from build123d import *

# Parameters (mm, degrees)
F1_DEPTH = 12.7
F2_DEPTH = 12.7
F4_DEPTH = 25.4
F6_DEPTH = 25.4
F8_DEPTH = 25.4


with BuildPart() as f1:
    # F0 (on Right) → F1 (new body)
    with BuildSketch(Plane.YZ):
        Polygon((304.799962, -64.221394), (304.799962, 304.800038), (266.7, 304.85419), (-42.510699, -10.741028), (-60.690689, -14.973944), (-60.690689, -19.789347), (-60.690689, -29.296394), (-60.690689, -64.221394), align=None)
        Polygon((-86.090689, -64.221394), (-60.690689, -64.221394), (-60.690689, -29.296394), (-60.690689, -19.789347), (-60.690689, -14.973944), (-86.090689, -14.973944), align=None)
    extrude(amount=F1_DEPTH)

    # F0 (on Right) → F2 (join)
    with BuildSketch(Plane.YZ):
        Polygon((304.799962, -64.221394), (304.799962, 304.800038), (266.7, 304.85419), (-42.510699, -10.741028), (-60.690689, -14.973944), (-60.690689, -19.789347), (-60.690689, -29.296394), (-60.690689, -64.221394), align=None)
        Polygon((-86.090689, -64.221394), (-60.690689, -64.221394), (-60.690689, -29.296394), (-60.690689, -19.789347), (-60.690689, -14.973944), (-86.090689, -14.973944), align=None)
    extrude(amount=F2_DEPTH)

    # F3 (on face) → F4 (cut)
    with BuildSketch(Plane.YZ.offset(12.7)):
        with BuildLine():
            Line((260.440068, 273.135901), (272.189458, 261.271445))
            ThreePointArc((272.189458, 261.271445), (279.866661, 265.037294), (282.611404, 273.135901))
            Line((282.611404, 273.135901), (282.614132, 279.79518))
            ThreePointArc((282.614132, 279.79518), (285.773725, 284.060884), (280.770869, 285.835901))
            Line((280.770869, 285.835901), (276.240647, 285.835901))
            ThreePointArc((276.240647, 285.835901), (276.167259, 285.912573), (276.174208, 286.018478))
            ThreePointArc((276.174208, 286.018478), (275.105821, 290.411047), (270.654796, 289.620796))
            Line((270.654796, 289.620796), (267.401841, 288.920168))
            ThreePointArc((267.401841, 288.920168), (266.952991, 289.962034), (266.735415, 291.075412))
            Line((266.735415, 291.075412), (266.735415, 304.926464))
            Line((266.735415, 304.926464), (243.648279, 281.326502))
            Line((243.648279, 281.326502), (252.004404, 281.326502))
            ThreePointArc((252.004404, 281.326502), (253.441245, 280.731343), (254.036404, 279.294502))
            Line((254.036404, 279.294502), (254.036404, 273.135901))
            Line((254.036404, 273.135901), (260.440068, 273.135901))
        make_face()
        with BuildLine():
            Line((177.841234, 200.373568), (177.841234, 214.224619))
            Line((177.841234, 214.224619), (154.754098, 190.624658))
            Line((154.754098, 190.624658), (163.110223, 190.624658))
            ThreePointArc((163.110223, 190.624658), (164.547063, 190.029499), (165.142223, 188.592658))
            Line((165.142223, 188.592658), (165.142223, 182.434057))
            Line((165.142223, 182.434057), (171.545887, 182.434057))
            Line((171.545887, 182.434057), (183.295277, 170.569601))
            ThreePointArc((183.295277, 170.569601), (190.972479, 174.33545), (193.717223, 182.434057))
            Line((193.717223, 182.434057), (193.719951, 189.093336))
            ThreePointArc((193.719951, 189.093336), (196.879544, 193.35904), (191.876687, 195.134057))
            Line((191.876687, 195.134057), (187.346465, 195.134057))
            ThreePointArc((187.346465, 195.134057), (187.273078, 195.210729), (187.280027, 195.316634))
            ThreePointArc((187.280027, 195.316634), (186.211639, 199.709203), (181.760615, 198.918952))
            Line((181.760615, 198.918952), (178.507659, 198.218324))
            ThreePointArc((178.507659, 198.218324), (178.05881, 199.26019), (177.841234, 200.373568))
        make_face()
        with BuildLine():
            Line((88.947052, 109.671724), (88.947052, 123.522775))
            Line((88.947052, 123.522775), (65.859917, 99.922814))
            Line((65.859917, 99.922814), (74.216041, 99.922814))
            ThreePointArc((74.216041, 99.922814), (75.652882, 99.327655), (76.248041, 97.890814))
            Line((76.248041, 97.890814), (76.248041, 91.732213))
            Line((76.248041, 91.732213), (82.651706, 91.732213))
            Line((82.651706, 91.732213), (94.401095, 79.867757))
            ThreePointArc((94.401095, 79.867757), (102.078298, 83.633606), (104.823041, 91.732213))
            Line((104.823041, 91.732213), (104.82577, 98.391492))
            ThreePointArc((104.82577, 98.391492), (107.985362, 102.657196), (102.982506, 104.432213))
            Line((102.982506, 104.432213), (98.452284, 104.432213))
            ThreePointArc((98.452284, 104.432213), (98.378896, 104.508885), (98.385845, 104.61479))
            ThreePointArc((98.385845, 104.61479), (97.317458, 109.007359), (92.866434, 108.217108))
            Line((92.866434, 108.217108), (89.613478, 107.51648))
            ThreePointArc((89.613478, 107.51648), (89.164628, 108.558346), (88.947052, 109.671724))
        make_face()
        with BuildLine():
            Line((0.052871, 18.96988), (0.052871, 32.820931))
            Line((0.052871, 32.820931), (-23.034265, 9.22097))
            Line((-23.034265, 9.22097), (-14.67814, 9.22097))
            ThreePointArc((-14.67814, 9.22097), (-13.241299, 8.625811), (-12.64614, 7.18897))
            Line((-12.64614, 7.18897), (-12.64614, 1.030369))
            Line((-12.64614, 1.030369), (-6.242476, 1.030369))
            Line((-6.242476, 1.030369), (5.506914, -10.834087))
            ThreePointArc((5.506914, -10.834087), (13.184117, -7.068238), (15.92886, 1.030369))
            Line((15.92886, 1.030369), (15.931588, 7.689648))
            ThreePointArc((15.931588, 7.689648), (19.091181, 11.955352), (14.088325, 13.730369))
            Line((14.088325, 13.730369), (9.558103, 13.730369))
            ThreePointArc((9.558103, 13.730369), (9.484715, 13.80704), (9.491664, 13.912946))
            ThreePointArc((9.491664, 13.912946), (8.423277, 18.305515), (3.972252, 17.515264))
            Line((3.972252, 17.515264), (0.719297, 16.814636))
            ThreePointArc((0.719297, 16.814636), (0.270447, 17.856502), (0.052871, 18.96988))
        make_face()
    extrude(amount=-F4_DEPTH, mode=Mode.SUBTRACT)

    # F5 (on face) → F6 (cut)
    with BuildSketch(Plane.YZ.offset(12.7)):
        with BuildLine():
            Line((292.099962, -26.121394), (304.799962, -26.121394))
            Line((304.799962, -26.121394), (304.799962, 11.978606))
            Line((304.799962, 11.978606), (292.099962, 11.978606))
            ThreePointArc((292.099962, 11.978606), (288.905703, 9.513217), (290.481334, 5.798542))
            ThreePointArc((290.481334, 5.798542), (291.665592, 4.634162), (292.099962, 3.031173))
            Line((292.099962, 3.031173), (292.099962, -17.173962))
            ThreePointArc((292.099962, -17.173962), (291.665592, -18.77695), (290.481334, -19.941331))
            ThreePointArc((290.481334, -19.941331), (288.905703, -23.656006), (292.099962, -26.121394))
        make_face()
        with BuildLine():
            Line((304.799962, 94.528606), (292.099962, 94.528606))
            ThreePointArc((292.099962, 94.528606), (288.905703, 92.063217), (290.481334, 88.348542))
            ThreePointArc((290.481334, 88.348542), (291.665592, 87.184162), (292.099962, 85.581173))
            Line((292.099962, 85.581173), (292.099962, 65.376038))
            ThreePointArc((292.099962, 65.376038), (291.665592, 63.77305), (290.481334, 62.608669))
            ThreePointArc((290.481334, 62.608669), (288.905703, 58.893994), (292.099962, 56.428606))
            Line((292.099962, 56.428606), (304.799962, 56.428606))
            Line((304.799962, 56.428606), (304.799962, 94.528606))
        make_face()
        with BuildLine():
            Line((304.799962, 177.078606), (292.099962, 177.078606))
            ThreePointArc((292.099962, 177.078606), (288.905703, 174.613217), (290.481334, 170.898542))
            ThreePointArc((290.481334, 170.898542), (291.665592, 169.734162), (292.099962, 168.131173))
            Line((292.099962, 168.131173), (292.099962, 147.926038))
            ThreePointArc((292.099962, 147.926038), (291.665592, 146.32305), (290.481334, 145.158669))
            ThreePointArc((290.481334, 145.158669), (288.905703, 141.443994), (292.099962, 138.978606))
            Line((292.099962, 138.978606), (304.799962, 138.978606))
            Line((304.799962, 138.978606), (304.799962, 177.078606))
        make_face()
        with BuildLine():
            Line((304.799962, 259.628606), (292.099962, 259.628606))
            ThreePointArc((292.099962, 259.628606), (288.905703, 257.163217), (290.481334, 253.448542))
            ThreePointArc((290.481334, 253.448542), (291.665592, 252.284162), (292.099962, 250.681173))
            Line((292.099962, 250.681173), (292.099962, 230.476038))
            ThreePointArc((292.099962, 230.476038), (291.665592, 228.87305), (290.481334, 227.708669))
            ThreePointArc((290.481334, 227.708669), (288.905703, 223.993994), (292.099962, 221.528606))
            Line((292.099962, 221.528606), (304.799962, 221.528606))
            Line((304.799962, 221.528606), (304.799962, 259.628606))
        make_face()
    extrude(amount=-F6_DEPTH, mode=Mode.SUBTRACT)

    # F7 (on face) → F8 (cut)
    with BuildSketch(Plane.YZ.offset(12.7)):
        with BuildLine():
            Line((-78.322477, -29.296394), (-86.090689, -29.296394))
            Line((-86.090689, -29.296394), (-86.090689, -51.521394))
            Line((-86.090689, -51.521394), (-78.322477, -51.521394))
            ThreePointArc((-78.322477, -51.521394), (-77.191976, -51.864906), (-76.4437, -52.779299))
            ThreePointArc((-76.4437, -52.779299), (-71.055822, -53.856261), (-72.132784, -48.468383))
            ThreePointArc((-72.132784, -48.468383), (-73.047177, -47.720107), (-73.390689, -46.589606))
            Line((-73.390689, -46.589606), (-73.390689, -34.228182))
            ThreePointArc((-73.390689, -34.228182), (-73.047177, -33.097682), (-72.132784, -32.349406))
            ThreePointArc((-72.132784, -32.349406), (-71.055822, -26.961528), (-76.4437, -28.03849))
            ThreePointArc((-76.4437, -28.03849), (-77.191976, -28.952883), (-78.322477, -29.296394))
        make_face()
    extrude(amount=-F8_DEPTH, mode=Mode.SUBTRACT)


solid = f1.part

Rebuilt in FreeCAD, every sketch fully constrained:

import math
import FreeCAD as App
import Part
import Sketcher
Q = App.Units.Quantity

doc = App.newDocument("Part")
body = doc.addObject("PartDesign::Body", "Body")

sketch1 = doc.addObject("Sketcher::SketchObject", "Sketch")
body.addObject(sketch1)
sketch1.AttachmentSupport = (doc.YZ_Plane, [""])
sketch1.MapMode = "FlatFace"
sketch1.addGeometry(Part.LineSegment(App.Vector(305, -64, 0), App.Vector(305, 305, 0)), False)
sketch1.addGeometry(Part.LineSegment(App.Vector(305, 305, 0), App.Vector(267, 305, 0)), False)
sketch1.addGeometry(Part.LineSegment(App.Vector(267, 305, 0), App.Vector(-43, -11, 0)), False)
sketch1.addGeometry(Part.LineSegment(App.Vector(-43, -11, 0), App.Vector(-61, -15, 0)), False)
sketch1.addGeometry(Part.LineSegment(App.Vector(-61, -15, 0), App.Vector(-86, -15, 0)), False)
sketch1.addGeometry(Part.LineSegment(App.Vector(-86, -15, 0), App.Vector(-86, -64, 0)), False)
sketch1.addGeometry(Part.LineSegment(App.Vector(-86, -64, 0), App.Vector(305, -64, 0)), False)
sketch1.addConstraint(Sketcher.Constraint("Coincident", 0, 2, 1, 1))
sketch1.addConstraint(Sketcher.Constraint("Coincident", 1, 2, 2, 1))
sketch1.addConstraint(Sketcher.Constraint("Coincident", 2, 2, 3, 1))
sketch1.addConstraint(Sketcher.Constraint("Coincident", 3, 2, 4, 1))
sketch1.addConstraint(Sketcher.Constraint("Coincident", 4, 2, 5, 1))
sketch1.addConstraint(Sketcher.Constraint("Coincident", 5, 2, 6, 1))
sketch1.addConstraint(Sketcher.Constraint("Coincident", 6, 2, 0, 1))
sketch1.addConstraint(Sketcher.Constraint("Vertical", 0))
sketch1.addConstraint(Sketcher.Constraint("Horizontal", 4))
sketch1.addConstraint(Sketcher.Constraint("Vertical", 5))
sketch1.addConstraint(Sketcher.Constraint("Horizontal", 6))
sketch1.addConstraint(Sketcher.Constraint("DistanceX", 4, 2, 4, 1, Q("1 in")))
sketch1.addConstraint(Sketcher.Constraint("Distance", 1, Q("1.5 in")))
sketch1.addConstraint(Sketcher.Constraint("DistanceX", -1, 1, 1, 2, Q("10.5 in")))
sketch1.addConstraint(Sketcher.Constraint("DistanceX", 6, 1, 6, 2, 390.890651))
sketch1.addConstraint(Sketcher.Constraint("DistanceY", 0, 1, 0, 2, 369.021432))
sketch1.addConstraint(Sketcher.Constraint("DistanceY", 5, 2, 5, 1, 49.24745))
sketch1.addConstraint(Sketcher.Constraint("DistanceX", 2, 2, -1, 1, 42.510699))
sketch1.addConstraint(Sketcher.Constraint("Distance", 3, 18.666269))
sketch1.addConstraint(Sketcher.Constraint("DistanceY", -1, 1, 1, 2, 304.85419))
sketch1.addConstraint(Sketcher.Constraint("DistanceY", 2, 2, 1, 2, 315.595218))
pad1 = doc.addObject("PartDesign::Pad", "Pad")
body.addObject(pad1)
pad1.Profile = sketch1
pad1.Length = Q("0.5 in")

sketch2 = doc.addObject("Sketcher::SketchObject", "Sketch001")
body.addObject(sketch2)
sketch2.AttachmentSupport = (doc.YZ_Plane, [""])
sketch2.MapMode = "FlatFace"
sketch2.addGeometry(Part.LineSegment(App.Vector(305, -64, 0), App.Vector(305, 305, 0)), False)
sketch2.addGeometry(Part.LineSegment(App.Vector(305, 305, 0), App.Vector(267, 305, 0)), False)
sketch2.addGeometry(Part.LineSegment(App.Vector(267, 305, 0), App.Vector(-43, -11, 0)), False)
sketch2.addGeometry(Part.LineSegment(App.Vector(-43, -11, 0), App.Vector(-61, -15, 0)), False)
sketch2.addGeometry(Part.LineSegment(App.Vector(-61, -15, 0), App.Vector(-86, -15, 0)), False)
sketch2.addGeometry(Part.LineSegment(App.Vector(-86, -15, 0), App.Vector(-86, -64, 0)), False)
sketch2.addGeometry(Part.LineSegment(App.Vector(-86, -64, 0), App.Vector(305, -64, 0)), False)
sketch2.addConstraint(Sketcher.Constraint("Coincident", 0, 2, 1, 1))
sketch2.addConstraint(Sketcher.Constraint("Coincident", 1, 2, 2, 1))
sketch2.addConstraint(Sketcher.Constraint("Coincident", 2, 2, 3, 1))
sketch2.addConstraint(Sketcher.Constraint("Coincident", 3, 2, 4, 1))
sketch2.addConstraint(Sketcher.Constraint("Coincident", 4, 2, 5, 1))
sketch2.addConstraint(Sketcher.Constraint("Coincident", 5, 2, 6, 1))
sketch2.addConstraint(Sketcher.Constraint("Coincident", 6, 2, 0, 1))
sketch2.addConstraint(Sketcher.Constraint("Vertical", 0))
sketch2.addConstraint(Sketcher.Constraint("Horizontal", 4))
sketch2.addConstraint(Sketcher.Constraint("Vertical", 5))
sketch2.addConstraint(Sketcher.Constraint("Horizontal", 6))
sketch2.addConstraint(Sketcher.Constraint("DistanceX", 4, 2, 4, 1, Q("1 in")))
sketch2.addConstraint(Sketcher.Constraint("Distance", 1, Q("1.5 in")))
sketch2.addConstraint(Sketcher.Constraint("DistanceX", -1, 1, 1, 2, Q("10.5 in")))
sketch2.addConstraint(Sketcher.Constraint("DistanceX", 6, 1, 6, 2, 390.890651))
sketch2.addConstraint(Sketcher.Constraint("DistanceY", 0, 1, 0, 2, 369.021432))
sketch2.addConstraint(Sketcher.Constraint("DistanceY", 5, 2, 5, 1, 49.24745))
sketch2.addConstraint(Sketcher.Constraint("DistanceX", 2, 2, -1, 1, 42.510699))
sketch2.addConstraint(Sketcher.Constraint("Distance", 3, 18.666269))
sketch2.addConstraint(Sketcher.Constraint("DistanceY", -1, 1, 1, 2, 304.85419))
sketch2.addConstraint(Sketcher.Constraint("DistanceY", 2, 2, 1, 2, 315.595218))
pad2 = doc.addObject("PartDesign::Pad", "Pad001")
body.addObject(pad2)
pad2.Profile = sketch2
pad2.Length = Q("0.5 in")

sketch3 = doc.addObject("Sketcher::SketchObject", "Sketch002")
body.addObject(sketch3)
sketch3.AttachmentSupport = (doc.YZ_Plane, [""])
sketch3.MapMode = "FlatFace"
sketch3.AttachmentOffset = App.Placement(App.Vector(0, 0, 0.5 * 25.4), App.Rotation())
sketch3.addGeometry(Part.LineSegment(App.Vector(260.440068, 273.135901, 0), App.Vector(272.189458, 261.271445, 0)), False)
sketch3.addGeometry(Part.ArcOfCircle(Part.Circle(App.Vector(271.498904, 272.387677, 0), App.Vector(0, 0, 1), 11.137661), math.radians(-86.445286), math.radians(3.852009)), False)
sketch3.addGeometry(Part.LineSegment(App.Vector(282.611404, 273.135901, 0), App.Vector(282.614132, 279.79518, 0)), False)
sketch3.addGeometry(Part.ArcOfCircle(Part.Circle(App.Vector(282.615485, 283.09718, 0), App.Vector(0, 0, 1), 3.302), math.radians(-90.023483), math.radians(123.961526)), False)
sketch3.addGeometry(Part.LineSegment(App.Vector(280.770869, 285.835901, 0), App.Vector(276.240647, 285.835901, 0)), False)
sketch3.addGeometry(Part.ArcOfCircle(Part.Circle(App.Vector(276.291077, 285.957629, 0), App.Vector(0, 0, 1), 0.131761), math.radians(152.495822), math.radians(247.496644)), False)
sketch3.addGeometry(Part.ArcOfCircle(Part.Circle(App.Vector(273.301095, 287.645876, 0), App.Vector(0, 0, 1), 3.302), math.radians(-29.528229), math.radians(143.266204)), False)
sketch3.addGeometry(Part.LineSegment(App.Vector(270.654796, 289.620796, 0), App.Vector(267.401841, 288.920168, 0)), False)
sketch3.addGeometry(Part.ArcOfCircle(Part.Circle(App.Vector(272.031996, 291.53252, 0), App.Vector(0, 0, 1), 5.31627), math.radians(-175.067455), math.radians(-150.568136)), False)
sketch3.addGeometry(Part.LineSegment(App.Vector(266.735415, 291.075412, 0), App.Vector(266.735415, 304.926464, 0)), False)
sketch3.addGeometry(Part.LineSegment(App.Vector(266.735415, 304.926464, 0), App.Vector(243.648279, 281.326502, 0)), False)
sketch3.addGeometry(Part.LineSegment(App.Vector(243.648279, 281.326502, 0), App.Vector(252.004404, 281.326502, 0)), False)
sketch3.addGeometry(Part.ArcOfCircle(Part.Circle(App.Vector(252.004404, 279.294502, 0), App.Vector(0, 0, 1), 2.032), math.radians(-0.000002), math.radians(90.000002)), False)
sketch3.addGeometry(Part.LineSegment(App.Vector(254.036404, 279.294502, 0), App.Vector(254.036404, 273.135901, 0)), False)
sketch3.addGeometry(Part.LineSegment(App.Vector(254.036404, 273.135901, 0), App.Vector(260.440068, 273.135901, 0)), False)
sketch3.addGeometry(Part.LineSegment(App.Vector(177.841234, 200.373568, 0), App.Vector(177.841234, 214.224619, 0)), False)
sketch3.addGeometry(Part.LineSegment(App.Vector(177.841234, 214.224619, 0), App.Vector(154.754098, 190.624658, 0)), False)
sketch3.addGeometry(Part.LineSegment(App.Vector(154.754098, 190.624658, 0), App.Vector(163.110223, 190.624658, 0)), False)
sketch3.addGeometry(Part.ArcOfCircle(Part.Circle(App.Vector(163.110221, 188.592656, 0), App.Vector(0, 0, 1), 2.032002), math.radians(0.000046), math.radians(89.999954)), False)
sketch3.addGeometry(Part.LineSegment(App.Vector(165.142223, 188.592658, 0), App.Vector(165.142223, 182.434057, 0)), False)
sketch3.addGeometry(Part.LineSegment(App.Vector(165.142223, 182.434057, 0), App.Vector(171.545887, 182.434057, 0)), False)
sketch3.addGeometry(Part.LineSegment(App.Vector(171.545887, 182.434057, 0), App.Vector(183.295277, 170.569601, 0)), False)
sketch3.addGeometry(Part.ArcOfCircle(Part.Circle(App.Vector(182.604721, 181.685835, 0), App.Vector(0, 0, 1), 11.137663), math.radians(-86.445276), math.radians(3.852)), False)
sketch3.addGeometry(Part.LineSegment(App.Vector(193.717223, 182.434057, 0), App.Vector(193.719951, 189.093336, 0)), False)
sketch3.addGeometry(Part.ArcOfCircle(Part.Circle(App.Vector(193.721304, 192.395336, 0), App.Vector(0, 0, 1), 3.302), math.radians(-90.023478), math.radians(123.961538)), False)
sketch3.addGeometry(Part.LineSegment(App.Vector(191.876687, 195.134057, 0), App.Vector(187.346465, 195.134057, 0)), False)
sketch3.addGeometry(Part.ArcOfCircle(Part.Circle(App.Vector(187.396896, 195.255785, 0), App.Vector(0, 0, 1), 0.131761), math.radians(152.495935), math.radians(247.495976)), False)
sketch3.addGeometry(Part.ArcOfCircle(Part.Circle(App.Vector(184.406914, 196.944032, 0), App.Vector(0, 0, 1), 3.302), math.radians(-29.528219), math.radians(143.266194)), False)
sketch3.addGeometry(Part.LineSegment(App.Vector(181.760615, 198.918952, 0), App.Vector(178.507659, 198.218324, 0)), False)
sketch3.addGeometry(Part.ArcOfCircle(Part.Circle(App.Vector(183.137834, 200.83068, 0), App.Vector(0, 0, 1), 5.316289), math.radians(-175.067432), math.radians(-150.568207)), False)
sketch3.addGeometry(Part.LineSegment(App.Vector(88.947052, 109.671724, 0), App.Vector(88.947052, 123.522775, 0)), False)
sketch3.addGeometry(Part.LineSegment(App.Vector(88.947052, 123.522775, 0), App.Vector(65.859917, 99.922814, 0)), False)
sketch3.addGeometry(Part.LineSegment(App.Vector(65.859917, 99.922814, 0), App.Vector(74.216041, 99.922814, 0)), False)
sketch3.addGeometry(Part.ArcOfCircle(Part.Circle(App.Vector(74.216041, 97.890814, 0), App.Vector(0, 0, 1), 2.032), math.radians(-0.000002), math.radians(90.000002)), False)
sketch3.addGeometry(Part.LineSegment(App.Vector(76.248041, 97.890814, 0), App.Vector(76.248041, 91.732213, 0)), False)
sketch3.addGeometry(Part.LineSegment(App.Vector(76.248041, 91.732213, 0), App.Vector(82.651706, 91.732213, 0)), False)
sketch3.addGeometry(Part.LineSegment(App.Vector(82.651706, 91.732213, 0), App.Vector(94.401095, 79.867757, 0)), False)
sketch3.addGeometry(Part.ArcOfCircle(Part.Circle(App.Vector(93.710541, 90.983989, 0), App.Vector(0, 0, 1), 11.137661), math.radians(-86.445286), math.radians(3.852009)), False)
sketch3.addGeometry(Part.LineSegment(App.Vector(104.823041, 91.732213, 0), App.Vector(104.82577, 98.391492, 0)), False)
sketch3.addGeometry(Part.ArcOfCircle(Part.Circle(App.Vector(104.827122, 101.693492, 0), App.Vector(0, 0, 1), 3.302), math.radians(-90.023465), math.radians(123.961526)), False)
sketch3.addGeometry(Part.LineSegment(App.Vector(102.982506, 104.432213, 0), App.Vector(98.452284, 104.432213, 0)), False)
sketch3.addGeometry(Part.ArcOfCircle(Part.Circle(App.Vector(98.502714, 104.553941, 0), App.Vector(0, 0, 1), 0.131761), math.radians(152.495822), math.radians(247.496644)), False)
sketch3.addGeometry(Part.ArcOfCircle(Part.Circle(App.Vector(95.512732, 106.242189, 0), App.Vector(0, 0, 1), 3.302), math.radians(-29.528236), math.radians(143.266201)), False)
sketch3.addGeometry(Part.LineSegment(App.Vector(92.866434, 108.217108, 0), App.Vector(89.613478, 107.51648, 0)), False)
sketch3.addGeometry(Part.ArcOfCircle(Part.Circle(App.Vector(94.243633, 110.128832, 0), App.Vector(0, 0, 1), 5.31627), math.radians(-175.067455), math.radians(-150.568136)), False)
sketch3.addGeometry(Part.LineSegment(App.Vector(0.052871, 18.96988, 0), App.Vector(0.052871, 32.820931, 0)), False)
sketch3.addGeometry(Part.LineSegment(App.Vector(0.052871, 32.820931, 0), App.Vector(-23.034265, 9.22097, 0)), False)
sketch3.addGeometry(Part.LineSegment(App.Vector(-23.034265, 9.22097, 0), App.Vector(-14.67814, 9.22097, 0)), False)
sketch3.addGeometry(Part.ArcOfCircle(Part.Circle(App.Vector(-14.67814, 7.18897, 0), App.Vector(0, 0, 1), 2.032), math.radians(-0.000002), math.radians(90.000002)), False)
sketch3.addGeometry(Part.LineSegment(App.Vector(-12.64614, 7.18897, 0), App.Vector(-12.64614, 1.030369, 0)), False)
sketch3.addGeometry(Part.LineSegment(App.Vector(-12.64614, 1.030369, 0), App.Vector(-6.242476, 1.030369, 0)), False)
sketch3.addGeometry(Part.LineSegment(App.Vector(-6.242476, 1.030369, 0), App.Vector(5.506914, -10.834087, 0)), False)
sketch3.addGeometry(Part.ArcOfCircle(Part.Circle(App.Vector(4.81636, 0.282145, 0), App.Vector(0, 0, 1), 11.137661), math.radians(-86.445286), math.radians(3.852009)), False)
sketch3.addGeometry(Part.LineSegment(App.Vector(15.92886, 1.030369, 0), App.Vector(15.931588, 7.689648, 0)), False)
sketch3.addGeometry(Part.ArcOfCircle(Part.Circle(App.Vector(15.932941, 10.991648, 0), App.Vector(0, 0, 1), 3.302), math.radians(-90.023483), math.radians(123.961526)), False)
sketch3.addGeometry(Part.LineSegment(App.Vector(14.088325, 13.730369, 0), App.Vector(9.558103, 13.730369, 0)), False)
sketch3.addGeometry(Part.ArcOfCircle(Part.Circle(App.Vector(9.608532, 13.852097, 0), App.Vector(0, 0, 1), 0.13176), math.radians(152.495484), math.radians(247.496982)), False)
sketch3.addGeometry(Part.ArcOfCircle(Part.Circle(App.Vector(6.618551, 15.540344, 0), App.Vector(0, 0, 1), 3.302), math.radians(-29.528229), math.radians(143.266204)), False)
sketch3.addGeometry(Part.LineSegment(App.Vector(3.972252, 17.515264, 0), App.Vector(0.719297, 16.814636, 0)), False)
sketch3.addGeometry(Part.ArcOfCircle(Part.Circle(App.Vector(5.349452, 19.426988, 0), App.Vector(0, 0, 1), 5.31627), math.radians(-175.067455), math.radians(-150.568136)), False)
sketch3.addConstraint(Sketcher.Constraint("Coincident", 0, 2, 1, 1))
sketch3.addConstraint(Sketcher.Constraint("Coincident", 1, 2, 2, 1))
sketch3.addConstraint(Sketcher.Constraint("Coincident", 2, 2, 3, 1))
sketch3.addConstraint(Sketcher.Constraint("Coincident", 3, 2, 4, 1))
sketch3.addConstraint(Sketcher.Constraint("Coincident", 4, 2, 5, 2))
sketch3.addConstraint(Sketcher.Constraint("Coincident", 5, 1, 6, 1))
sketch3.addConstraint(Sketcher.Constraint("Coincident", 6, 2, 7, 1))
sketch3.addConstraint(Sketcher.Constraint("Coincident", 7, 2, 8, 2))
sketch3.addConstraint(Sketcher.Constraint("Coincident", 8, 1, 9, 1))
sketch3.addConstraint(Sketcher.Constraint("Coincident", 9, 2, 10, 1))
sketch3.addConstraint(Sketcher.Constraint("Coincident", 10, 2, 11, 1))
sketch3.addConstraint(Sketcher.Constraint("Coincident", 11, 2, 12, 2))
sketch3.addConstraint(Sketcher.Constraint("Coincident", 12, 1, 13, 1))
sketch3.addConstraint(Sketcher.Constraint("Coincident", 13, 2, 14, 1))
sketch3.addConstraint(Sketcher.Constraint("Coincident", 14, 2, 0, 1))
sketch3.addConstraint(Sketcher.Constraint("Coincident", 15, 2, 16, 1))
sketch3.addConstraint(Sketcher.Constraint("Coincident", 16, 2, 17, 1))
sketch3.addConstraint(Sketcher.Constraint("Coincident", 17, 2, 18, 2))
sketch3.addConstraint(Sketcher.Constraint("Coincident", 18, 1, 19, 1))
sketch3.addConstraint(Sketcher.Constraint("Coincident", 19, 2, 20, 1))
sketch3.addConstraint(Sketcher.Constraint("Coincident", 20, 2, 21, 1))
sketch3.addConstraint(Sketcher.Constraint("Coincident", 21, 2, 22, 1))
sketch3.addConstraint(Sketcher.Constraint("Coincident", 22, 2, 23, 1))
sketch3.addConstraint(Sketcher.Constraint("Coincident", 23, 2, 24, 1))
sketch3.addConstraint(Sketcher.Constraint("Coincident", 24, 2, 25, 1))
sketch3.addConstraint(Sketcher.Constraint("Coincident", 25, 2, 26, 2))
sketch3.addConstraint(Sketcher.Constraint("Coincident", 26, 1, 27, 1))
sketch3.addConstraint(Sketcher.Constraint("Coincident", 27, 2, 28, 1))
sketch3.addConstraint(Sketcher.Constraint("Coincident", 28, 2, 29, 2))
sketch3.addConstraint(Sketcher.Constraint("Coincident", 29, 1, 15, 1))
sketch3.addConstraint(Sketcher.Constraint("Coincident", 30, 2, 31, 1))
sketch3.addConstraint(Sketcher.Constraint("Coincident", 31, 2, 32, 1))
sketch3.addConstraint(Sketcher.Constraint("Coincident", 32, 2, 33, 2))
sketch3.addConstraint(Sketcher.Constraint("Coincident", 33, 1, 34, 1))
sketch3.addConstraint(Sketcher.Constraint("Coincident", 34, 2, 35, 1))
sketch3.addConstraint(Sketcher.Constraint("Coincident", 35, 2, 36, 1))
sketch3.addConstraint(Sketcher.Constraint("Coincident", 36, 2, 37, 1))
sketch3.addConstraint(Sketcher.Constraint("Coincident", 37, 2, 38, 1))
sketch3.addConstraint(Sketcher.Constraint("Coincident", 38, 2, 39, 1))
sketch3.addConstraint(Sketcher.Constraint("Coincident", 39, 2, 40, 1))
sketch3.addConstraint(Sketcher.Constraint("Coincident", 40, 2, 41, 2))
sketch3.addConstraint(Sketcher.Constraint("Coincident", 41, 1, 42, 1))
sketch3.addConstraint(Sketcher.Constraint("Coincident", 42, 2, 43, 1))
sketch3.addConstraint(Sketcher.Constraint("Coincident", 43, 2, 44, 2))
sketch3.addConstraint(Sketcher.Constraint("Coincident", 44, 1, 30, 1))
sketch3.addConstraint(Sketcher.Constraint("Coincident", 45, 2, 46, 1))
sketch3.addConstraint(Sketcher.Constraint("Coincident", 46, 2, 47, 1))
sketch3.addConstraint(Sketcher.Constraint("Coincident", 47, 2, 48, 2))
sketch3.addConstraint(Sketcher.Constraint("Coincident", 48, 1, 49, 1))
sketch3.addConstraint(Sketcher.Constraint("Coincident", 49, 2, 50, 1))
sketch3.addConstraint(Sketcher.Constraint("Coincident", 50, 2, 51, 1))
sketch3.addConstraint(Sketcher.Constraint("Coincident", 51, 2, 52, 1))
sketch3.addConstraint(Sketcher.Constraint("Coincident", 52, 2, 53, 1))
sketch3.addConstraint(Sketcher.Constraint("Coincident", 53, 2, 54, 1))
sketch3.addConstraint(Sketcher.Constraint("Coincident", 54, 2, 55, 1))
sketch3.addConstraint(Sketcher.Constraint("Coincident", 55, 2, 56, 2))
sketch3.addConstraint(Sketcher.Constraint("Coincident", 56, 1, 57, 1))
sketch3.addConstraint(Sketcher.Constraint("Coincident", 57, 2, 58, 1))
sketch3.addConstraint(Sketcher.Constraint("Coincident", 58, 2, 59, 2))
sketch3.addConstraint(Sketcher.Constraint("Coincident", 59, 1, 45, 1))
sketch3.addConstraint(Sketcher.Constraint("Horizontal", 4))
sketch3.addConstraint(Sketcher.Constraint("Vertical", 9))
sketch3.addConstraint(Sketcher.Constraint("Horizontal", 11))
sketch3.addConstraint(Sketcher.Constraint("Vertical", 13))
sketch3.addConstraint(Sketcher.Constraint("Horizontal", 14))
sketch3.addConstraint(Sketcher.Constraint("Vertical", 15))
sketch3.addConstraint(Sketcher.Constraint("Horizontal", 17))
sketch3.addConstraint(Sketcher.Constraint("Vertical", 19))
sketch3.addConstraint(Sketcher.Constraint("Horizontal", 20))
sketch3.addConstraint(Sketcher.Constraint("Horizontal", 25))
sketch3.addConstraint(Sketcher.Constraint("Vertical", 30))
sketch3.addConstraint(Sketcher.Constraint("Horizontal", 32))
sketch3.addConstraint(Sketcher.Constraint("Vertical", 34))
sketch3.addConstraint(Sketcher.Constraint("Horizontal", 35))
sketch3.addConstraint(Sketcher.Constraint("Horizontal", 40))
sketch3.addConstraint(Sketcher.Constraint("Vertical", 45))
sketch3.addConstraint(Sketcher.Constraint("Horizontal", 47))
sketch3.addConstraint(Sketcher.Constraint("Vertical", 49))
sketch3.addConstraint(Sketcher.Constraint("Horizontal", 50))
sketch3.addConstraint(Sketcher.Constraint("Horizontal", 55))
sketch3.addConstraint(Sketcher.Constraint("Radius", 3, Q("0.13 in")))
sketch3.addConstraint(Sketcher.Constraint("Radius", 6, Q("0.13 in")))
sketch3.addConstraint(Sketcher.Constraint("Radius", 12, Q("0.08 in")))
sketch3.addConstraint(Sketcher.Constraint("Radius", 18, Q("0.0800001 in")))
sketch3.addConstraint(Sketcher.Constraint("Radius", 24, Q("0.13 in")))
sketch3.addConstraint(Sketcher.Constraint("Radius", 27, Q("0.13 in")))
sketch3.addConstraint(Sketcher.Constraint("Radius", 33, Q("0.08 in")))
sketch3.addConstraint(Sketcher.Constraint("Radius", 39, Q("0.13 in")))
sketch3.addConstraint(Sketcher.Constraint("Radius", 42, Q("0.13 in")))
sketch3.addConstraint(Sketcher.Constraint("Radius", 48, Q("0.08 in")))
sketch3.addConstraint(Sketcher.Constraint("Radius", 54, Q("0.13 in")))
sketch3.addConstraint(Sketcher.Constraint("Radius", 57, Q("0.13 in")))
sketch3.addConstraint(Sketcher.Constraint("Radius", 1, 11.137661))
sketch3.addConstraint(Sketcher.Constraint("Radius", 5, 0.131761))
sketch3.addConstraint(Sketcher.Constraint("Radius", 8, 5.31627))
sketch3.addConstraint(Sketcher.Constraint("Radius", 26, 0.131761))
sketch3.addConstraint(Sketcher.Constraint("Radius", 29, 5.316289))
sketch3.addConstraint(Sketcher.Constraint("Radius", 37, 11.137661))
sketch3.addConstraint(Sketcher.Constraint("Radius", 41, 0.131761))
sketch3.addConstraint(Sketcher.Constraint("Radius", 44, 5.31627))
sketch3.addConstraint(Sketcher.Constraint("Radius", 52, 11.137661))
sketch3.addConstraint(Sketcher.Constraint("Radius", 56, 0.13176))
sketch3.addConstraint(Sketcher.Constraint("Radius", 59, 5.31627))
sketch3.addConstraint(Sketcher.Constraint("DistanceY", 13, 2, 13, 1, 6.158601))
sketch3.addConstraint(Sketcher.Constraint("DistanceY", 19, 2, 19, 1, 6.158601))
sketch3.addConstraint(Sketcher.Constraint("DistanceY", 34, 2, 34, 1, 6.158601))
sketch3.addConstraint(Sketcher.Constraint("DistanceY", 49, 2, 49, 1, 6.158601))
sketch3.addConstraint(Sketcher.Constraint("DistanceY", -1, 1, 36, 2, Q("3.1443999 in")))
sketch3.addConstraint(Sketcher.Constraint("Radius", 22, 11.137663))
sketch3.addConstraint(Sketcher.Constraint("DistanceX", 4, 2, 4, 1, 4.530222))
sketch3.addConstraint(Sketcher.Constraint("DistanceX", 40, 2, 40, 1, 4.530222))
sketch3.addConstraint(Sketcher.Constraint("DistanceY", 15, 1, 15, 2, 13.851051))
sketch3.addConstraint(Sketcher.Constraint("DistanceY", 30, 1, 30, 2, 13.851051))
sketch3.addConstraint(Sketcher.Constraint("DistanceY", 45, 1, 45, 2, 13.851051))
sketch3.addConstraint(Sketcher.Constraint("DistanceY", -1, 1, 1, 2, 273.135901))
sketch3.addConstraint(Sketcher.Constraint("DistanceY", -1, 1, 3, 2, 285.835901))
sketch3.addConstraint(Sketcher.Constraint("DistanceY", -1, 1, 10, 2, 281.326502))
sketch3.addConstraint(Sketcher.Constraint("DistanceY", -1, 1, 12, 1, 279.294502))
sketch3.addConstraint(Sketcher.Constraint("DistanceX", -1, 1, 16, 2, 154.754098))
sketch3.addConstraint(Sketcher.Constraint("DistanceY", -1, 1, 21, 2, 170.569601))
sketch3.addConstraint(Sketcher.Constraint("Distance", 0, 16.697709))
sketch3.addConstraint(Sketcher.Constraint("Distance", 2, 6.65928))
sketch3.addConstraint(Sketcher.Constraint("Distance", 7, 3.327551))
sketch3.addConstraint(Sketcher.Constraint("Distance", 21, 16.697709))
sketch3.addConstraint(Sketcher.Constraint("Distance", 23, 6.65928))
sketch3.addConstraint(Sketcher.Constraint("Distance", 36, 16.697708))
sketch3.addConstraint(Sketcher.Constraint("Distance", 38, 6.65928))
sketch3.addConstraint(Sketcher.Constraint("Distance", 51, 16.697709))
sketch3.addConstraint(Sketcher.Constraint("Distance", 53, 6.65928))
sketch3.addConstraint(Sketcher.Constraint("Distance", 58, 3.327551))
sketch3.addConstraint(Sketcher.Constraint("DistanceX", 11, 1, 11, 2, 8.356125))
sketch3.addConstraint(Sketcher.Constraint("DistanceX", 14, 1, 14, 2, 6.403664))
sketch3.addConstraint(Sketcher.Constraint("DistanceX", 17, 1, 17, 2, 8.356125))
sketch3.addConstraint(Sketcher.Constraint("DistanceX", 20, 1, 20, 2, 6.403664))
sketch3.addConstraint(Sketcher.Constraint("DistanceX", 25, 2, 25, 1, 4.530222))
sketch3.addConstraint(Sketcher.Constraint("DistanceX", 32, 1, 32, 2, 8.356124))
sketch3.addConstraint(Sketcher.Constraint("DistanceX", 35, 1, 35, 2, 6.403665))
sketch3.addConstraint(Sketcher.Constraint("DistanceX", 47, 1, 47, 2, 8.356125))
sketch3.addConstraint(Sketcher.Constraint("DistanceX", 50, 1, 50, 2, 6.403664))
sketch3.addConstraint(Sketcher.Constraint("DistanceX", 55, 2, 55, 1, 4.530222))
sketch3.addConstraint(Sketcher.Constraint("DistanceY", 9, 1, 9, 2, 13.851052))
sketch3.addConstraint(Sketcher.Constraint("DistanceY", -1, 1, 5, 3, 285.957629))
sketch3.addConstraint(Sketcher.Constraint("DistanceY", -1, 1, 8, 3, 291.53252))
sketch3.addConstraint(Sketcher.Constraint("DistanceX", -1, 1, 18, 3, 163.110221))
sketch3.addConstraint(Sketcher.Constraint("DistanceX", -1, 1, 22, 3, 182.604721))
sketch3.addConstraint(Sketcher.Constraint("DistanceY", -1, 1, 27, 3, 196.944032))
sketch3.addConstraint(Sketcher.Constraint("DistanceY", -1, 1, 29, 3, 200.83068))
sketch3.addConstraint(Sketcher.Constraint("DistanceX", -1, 1, 33, 3, 74.216041))
sketch3.addConstraint(Sketcher.Constraint("DistanceX", -1, 1, 37, 3, 93.710541))
sketch3.addConstraint(Sketcher.Constraint("DistanceY", -1, 1, 37, 3, 90.983989))
sketch3.addConstraint(Sketcher.Constraint("DistanceY", -1, 1, 39, 3, 101.693492))
sketch3.addConstraint(Sketcher.Constraint("DistanceY", -1, 1, 41, 3, 104.553941))
sketch3.addConstraint(Sketcher.Constraint("DistanceY", -1, 1, 42, 3, 106.242189))
sketch3.addConstraint(Sketcher.Constraint("DistanceX", 48, 3, -1, 1, 14.67814))
sketch3.addConstraint(Sketcher.Constraint("DistanceY", -1, 1, 48, 3, 7.18897))
sketch3.addConstraint(Sketcher.Constraint("DistanceX", -1, 1, 52, 3, 4.81636))
sketch3.addConstraint(Sketcher.Constraint("DistanceX", -1, 1, 54, 3, 15.932941))
sketch3.addConstraint(Sketcher.Constraint("DistanceX", -1, 1, 56, 3, 9.608532))
sketch3.addConstraint(Sketcher.Constraint("DistanceX", -1, 1, 57, 3, 6.618551))
sketch3.addConstraint(Sketcher.Constraint("DistanceY", -1, 1, 59, 3, 19.426988))
sketch3.addConstraint(Sketcher.Constraint("DistanceX", -1, 1, 0, 2, 272.189458))
sketch3.addConstraint(Sketcher.Constraint("DistanceX", -1, 1, 2, 2, 282.614132))
sketch3.addConstraint(Sketcher.Constraint("DistanceX", -1, 1, 3, 2, 280.770869))
sketch3.addConstraint(Sketcher.Constraint("DistanceX", -1, 1, 5, 1, 276.174208))
sketch3.addConstraint(Sketcher.Constraint("DistanceX", -1, 1, 7, 2, 267.401841))
sketch3.addConstraint(Sketcher.Constraint("DistanceY", -1, 1, 7, 2, 288.920168))
sketch3.addConstraint(Sketcher.Constraint("DistanceY", -1, 1, 8, 1, 291.075412))
sketch3.addConstraint(Sketcher.Constraint("DistanceX", -1, 1, 10, 2, 243.648279))
sketch3.addConstraint(Sketcher.Constraint("DistanceX", -1, 1, 14, 2, 260.440068))
sketch3.addConstraint(Sketcher.Constraint("DistanceY", -1, 1, 15, 2, 214.224619))
sketch3.addConstraint(Sketcher.Constraint("DistanceY", -1, 1, 16, 2, 190.624658))
sketch3.addConstraint(Sketcher.Constraint("DistanceY", -1, 1, 18, 1, 188.592658))
sketch3.addConstraint(Sketcher.Constraint("DistanceX", -1, 1, 23, 2, 193.719951))
sketch3.addConstraint(Sketcher.Constraint("DistanceY", -1, 1, 27, 2, 198.918952))
sketch3.addConstraint(Sketcher.Constraint("DistanceX", -1, 1, 28, 2, 178.507659))
sketch3.addConstraint(Sketcher.Constraint("DistanceX", -1, 1, 30, 2, 88.947052))
sketch3.addConstraint(Sketcher.Constraint("DistanceX", -1, 1, 32, 2, 74.216041))
sketch3.addConstraint(Sketcher.Constraint("DistanceX", -1, 1, 38, 2, 104.82577))
sketch3.addConstraint(Sketcher.Constraint("DistanceY", -1, 1, 41, 1, 104.61479))
sketch3.addConstraint(Sketcher.Constraint("DistanceY", -1, 1, 42, 2, 108.217108))
sketch3.addConstraint(Sketcher.Constraint("DistanceX", -1, 1, 43, 2, 89.613478))
sketch3.addConstraint(Sketcher.Constraint("DistanceY", -1, 1, 43, 2, 107.51648))
sketch3.addConstraint(Sketcher.Constraint("DistanceX", -1, 1, 45, 2, 0.052871))
sketch3.addConstraint(Sketcher.Constraint("DistanceY", -1, 1, 45, 2, 32.820931))
sketch3.addConstraint(Sketcher.Constraint("DistanceX", 47, 2, -1, 1, 14.67814))
sketch3.addConstraint(Sketcher.Constraint("DistanceY", -1, 1, 48, 1, 7.18897))
sketch3.addConstraint(Sketcher.Constraint("DistanceX", -1, 1, 52, 2, 15.92886))
sketch3.addConstraint(Sketcher.Constraint("DistanceY", -1, 1, 52, 2, 1.030369))
sketch3.addConstraint(Sketcher.Constraint("DistanceY", -1, 1, 54, 2, 13.730369))
sketch3.addConstraint(Sketcher.Constraint("Distance", 16, 33.014754))
sketch3.addConstraint(Sketcher.Constraint("Distance", 28, 3.327552))
sketch3.addConstraint(Sketcher.Constraint("Distance", 31, 33.014754))
sketch3.addConstraint(Sketcher.Constraint("Distance", 43, 3.327552))
sketch3.addConstraint(Sketcher.Constraint("DistanceX", -1, 1, 1, 3, 271.498904))
sketch3.addConstraint(Sketcher.Constraint("DistanceX", -1, 1, 6, 3, 273.301095))
sketch3.addConstraint(Sketcher.Constraint("DistanceX", -1, 1, 24, 3, 193.721304))
sketch3.addConstraint(Sketcher.Constraint("DistanceY", -1, 1, 24, 3, 192.395336))
sketch3.addConstraint(Sketcher.Constraint("DistanceX", -1, 1, 26, 3, 187.396896))
sketch3.addConstraint(Sketcher.Constraint("DistanceY", -1, 1, 26, 3, 195.255785))
sketch3.addConstraint(Sketcher.Constraint("DistanceY", -1, 1, 33, 3, 97.890814))
sketch3.addConstraint(Sketcher.Constraint("DistanceX", -1, 1, 39, 3, 104.827122))
sketch3.addConstraint(Sketcher.Constraint("DistanceY", -1, 1, 57, 3, 15.540344))
sketch3.addConstraint(Sketcher.Constraint("DistanceX", -1, 1, 53, 2, 15.931588))
sketch3.addConstraint(Sketcher.Constraint("DistanceX", -1, 1, 57, 2, 3.972252))
pocket1 = doc.addObject("PartDesign::Pocket", "Pocket")
body.addObject(pocket1)
pocket1.Profile = sketch3
pocket1.Length = Q("1 in")

sketch4 = doc.addObject("Sketcher::SketchObject", "Sketch003")
body.addObject(sketch4)
sketch4.AttachmentSupport = (doc.YZ_Plane, [""])
sketch4.MapMode = "FlatFace"
sketch4.AttachmentOffset = App.Placement(App.Vector(0, 0, 0.5 * 25.4), App.Rotation())
sketch4.addGeometry(Part.LineSegment(App.Vector(292.1, -26.1, 0), App.Vector(304.8, -26.1, 0)), False)
sketch4.addGeometry(Part.LineSegment(App.Vector(304.8, -26.1, 0), App.Vector(304.8, 12, 0)), False)
sketch4.addGeometry(Part.LineSegment(App.Vector(304.8, 12, 0), App.Vector(292.1, 12, 0)), False)
sketch4.addGeometry(Part.ArcOfCircle(Part.Circle(App.Vector(292.1, 8.7, 0), App.Vector(0, 0, 1), 3.3), math.radians(90), math.radians(241)), False)
sketch4.addGeometry(Part.ArcOfCircle(Part.Circle(App.Vector(288.9, 3, 0), App.Vector(0, 0, 1), 3.2), math.radians(0), math.radians(61)), False)
sketch4.addGeometry(Part.LineSegment(App.Vector(292.1, 3, 0), App.Vector(292.1, -17.2, 0)), False)
sketch4.addGeometry(Part.ArcOfCircle(Part.Circle(App.Vector(288.9, -17.2, 0), App.Vector(0, 0, 1), 3.2), math.radians(-61), math.radians(0)), False)
sketch4.addGeometry(Part.ArcOfCircle(Part.Circle(App.Vector(292.1, -22.8, 0), App.Vector(0, 0, 1), 3.3), math.radians(119), math.radians(270)), False)
sketch4.addGeometry(Part.LineSegment(App.Vector(304.8, 94.5, 0), App.Vector(292.1, 94.5, 0)), False)
sketch4.addGeometry(Part.ArcOfCircle(Part.Circle(App.Vector(292.1, 91.2, 0), App.Vector(0, 0, 1), 3.3), math.radians(90), math.radians(241)), False)
sketch4.addGeometry(Part.ArcOfCircle(Part.Circle(App.Vector(288.9, 85.6, 0), App.Vector(0, 0, 1), 3.2), math.radians(0), math.radians(61)), False)
sketch4.addGeometry(Part.LineSegment(App.Vector(292.1, 85.6, 0), App.Vector(292.1, 65.4, 0)), False)
sketch4.addGeometry(Part.ArcOfCircle(Part.Circle(App.Vector(288.9, 65.4, 0), App.Vector(0, 0, 1), 3.2), math.radians(-61), math.radians(0)), False)
sketch4.addGeometry(Part.ArcOfCircle(Part.Circle(App.Vector(292.1, 59.7, 0), App.Vector(0, 0, 1), 3.3), math.radians(119), math.radians(270)), False)
sketch4.addGeometry(Part.LineSegment(App.Vector(292.1, 56.4, 0), App.Vector(304.8, 56.4, 0)), False)
sketch4.addGeometry(Part.LineSegment(App.Vector(304.8, 56.4, 0), App.Vector(304.8, 94.5, 0)), False)
sketch4.addGeometry(Part.LineSegment(App.Vector(304.8, 177.1, 0), App.Vector(292.1, 177.1, 0)), False)
sketch4.addGeometry(Part.ArcOfCircle(Part.Circle(App.Vector(292.1, 173.8, 0), App.Vector(0, 0, 1), 3.3), math.radians(90), math.radians(241)), False)
sketch4.addGeometry(Part.ArcOfCircle(Part.Circle(App.Vector(288.9, 168.1, 0), App.Vector(0, 0, 1), 3.2), math.radians(0), math.radians(61)), False)
sketch4.addGeometry(Part.LineSegment(App.Vector(292.1, 168.1, 0), App.Vector(292.1, 147.9, 0)), False)
sketch4.addGeometry(Part.ArcOfCircle(Part.Circle(App.Vector(288.9, 147.9, 0), App.Vector(0, 0, 1), 3.2), math.radians(-61), math.radians(0)), False)
sketch4.addGeometry(Part.ArcOfCircle(Part.Circle(App.Vector(292.1, 142.3, 0), App.Vector(0, 0, 1), 3.3), math.radians(119), math.radians(270)), False)
sketch4.addGeometry(Part.LineSegment(App.Vector(292.1, 139, 0), App.Vector(304.8, 139, 0)), False)
sketch4.addGeometry(Part.LineSegment(App.Vector(304.8, 139, 0), App.Vector(304.8, 177.1, 0)), False)
sketch4.addGeometry(Part.LineSegment(App.Vector(304.8, 259.6, 0), App.Vector(292.1, 259.6, 0)), False)
sketch4.addGeometry(Part.ArcOfCircle(Part.Circle(App.Vector(292.1, 256.3, 0), App.Vector(0, 0, 1), 3.3), math.radians(90), math.radians(241)), False)
sketch4.addGeometry(Part.ArcOfCircle(Part.Circle(App.Vector(288.9, 250.7, 0), App.Vector(0, 0, 1), 3.2), math.radians(0), math.radians(61)), False)
sketch4.addGeometry(Part.LineSegment(App.Vector(292.1, 250.7, 0), App.Vector(292.1, 230.5, 0)), False)
sketch4.addGeometry(Part.ArcOfCircle(Part.Circle(App.Vector(288.9, 230.5, 0), App.Vector(0, 0, 1), 3.2), math.radians(-61), math.radians(0)), False)
sketch4.addGeometry(Part.ArcOfCircle(Part.Circle(App.Vector(292.1, 224.8, 0), App.Vector(0, 0, 1), 3.3), math.radians(119), math.radians(270)), False)
sketch4.addGeometry(Part.LineSegment(App.Vector(292.1, 221.5, 0), App.Vector(304.8, 221.5, 0)), False)
sketch4.addGeometry(Part.LineSegment(App.Vector(304.8, 221.5, 0), App.Vector(304.8, 259.6, 0)), False)
sketch4.addConstraint(Sketcher.Constraint("Coincident", 0, 2, 1, 1))
sketch4.addConstraint(Sketcher.Constraint("Coincident", 1, 2, 2, 1))
sketch4.addConstraint(Sketcher.Constraint("Tangent", 2, 2, 3, 1))
sketch4.addConstraint(Sketcher.Constraint("Tangent", 3, 2, 4, 2))
sketch4.addConstraint(Sketcher.Constraint("Tangent", 4, 1, 5, 1))
sketch4.addConstraint(Sketcher.Constraint("Tangent", 5, 2, 6, 2))
sketch4.addConstraint(Sketcher.Constraint("Tangent", 6, 1, 7, 1))
sketch4.addConstraint(Sketcher.Constraint("Tangent", 7, 2, 0, 1))
sketch4.addConstraint(Sketcher.Constraint("Tangent", 8, 2, 9, 1))
sketch4.addConstraint(Sketcher.Constraint("Tangent", 9, 2, 10, 2))
sketch4.addConstraint(Sketcher.Constraint("Tangent", 10, 1, 11, 1))
sketch4.addConstraint(Sketcher.Constraint("Tangent", 11, 2, 12, 2))
sketch4.addConstraint(Sketcher.Constraint("Tangent", 12, 1, 13, 1))
sketch4.addConstraint(Sketcher.Constraint("Tangent", 13, 2, 14, 1))
sketch4.addConstraint(Sketcher.Constraint("Coincident", 14, 2, 15, 1))
sketch4.addConstraint(Sketcher.Constraint("Coincident", 15, 2, 8, 1))
sketch4.addConstraint(Sketcher.Constraint("Tangent", 16, 2, 17, 1))
sketch4.addConstraint(Sketcher.Constraint("Tangent", 17, 2, 18, 2))
sketch4.addConstraint(Sketcher.Constraint("Tangent", 18, 1, 19, 1))
sketch4.addConstraint(Sketcher.Constraint("Tangent", 19, 2, 20, 2))
sketch4.addConstraint(Sketcher.Constraint("Tangent", 20, 1, 21, 1))
sketch4.addConstraint(Sketcher.Constraint("Tangent", 21, 2, 22, 1))
sketch4.addConstraint(Sketcher.Constraint("Coincident", 22, 2, 23, 1))
sketch4.addConstraint(Sketcher.Constraint("Coincident", 23, 2, 16, 1))
sketch4.addConstraint(Sketcher.Constraint("Tangent", 24, 2, 25, 1))
sketch4.addConstraint(Sketcher.Constraint("Tangent", 25, 2, 26, 2))
sketch4.addConstraint(Sketcher.Constraint("Tangent", 26, 1, 27, 1))
sketch4.addConstraint(Sketcher.Constraint("Tangent", 27, 2, 28, 2))
sketch4.addConstraint(Sketcher.Constraint("Tangent", 28, 1, 29, 1))
sketch4.addConstraint(Sketcher.Constraint("Tangent", 29, 2, 30, 1))
sketch4.addConstraint(Sketcher.Constraint("Coincident", 30, 2, 31, 1))
sketch4.addConstraint(Sketcher.Constraint("Coincident", 31, 2, 24, 1))
sketch4.addConstraint(Sketcher.Constraint("Horizontal", 0))
sketch4.addConstraint(Sketcher.Constraint("Vertical", 1))
sketch4.addConstraint(Sketcher.Constraint("Horizontal", 2))
sketch4.addConstraint(Sketcher.Constraint("Vertical", 5))
sketch4.addConstraint(Sketcher.Constraint("Horizontal", 8))
sketch4.addConstraint(Sketcher.Constraint("Vertical", 11))
sketch4.addConstraint(Sketcher.Constraint("Horizontal", 14))
sketch4.addConstraint(Sketcher.Constraint("Vertical", 15))
sketch4.addConstraint(Sketcher.Constraint("Horizontal", 16))
sketch4.addConstraint(Sketcher.Constraint("Vertical", 19))
sketch4.addConstraint(Sketcher.Constraint("Horizontal", 22))
sketch4.addConstraint(Sketcher.Constraint("Vertical", 23))
sketch4.addConstraint(Sketcher.Constraint("Horizontal", 24))
sketch4.addConstraint(Sketcher.Constraint("Vertical", 27))
sketch4.addConstraint(Sketcher.Constraint("Horizontal", 30))
sketch4.addConstraint(Sketcher.Constraint("Vertical", 31))
sketch4.addConstraint(Sketcher.Constraint("Equal", 3, 7))
sketch4.addConstraint(Sketcher.Constraint("Equal", 7, 9))
sketch4.addConstraint(Sketcher.Constraint("Equal", 4, 10))
sketch4.addConstraint(Sketcher.Constraint("Equal", 6, 12))
sketch4.addConstraint(Sketcher.Constraint("Equal", 9, 13))
sketch4.addConstraint(Sketcher.Constraint("Equal", 13, 17))
sketch4.addConstraint(Sketcher.Constraint("Equal", 10, 18))
sketch4.addConstraint(Sketcher.Constraint("Equal", 12, 20))
sketch4.addConstraint(Sketcher.Constraint("Equal", 17, 21))
sketch4.addConstraint(Sketcher.Constraint("Equal", 21, 25))
sketch4.addConstraint(Sketcher.Constraint("Equal", 18, 26))
sketch4.addConstraint(Sketcher.Constraint("Equal", 20, 28))
sketch4.addConstraint(Sketcher.Constraint("Equal", 25, 29))
sketch4.addConstraint(Sketcher.Constraint("Vertical", 3, 3, 7, 3))
sketch4.addConstraint(Sketcher.Constraint("Vertical", 7, 3, 9, 3))
sketch4.addConstraint(Sketcher.Constraint("Vertical", 4, 3, 10, 3))
sketch4.addConstraint(Sketcher.Constraint("Vertical", 9, 3, 13, 3))
sketch4.addConstraint(Sketcher.Constraint("Vertical", 13, 3, 17, 3))
sketch4.addConstraint(Sketcher.Constraint("Vertical", 10, 3, 18, 3))
sketch4.addConstraint(Sketcher.Constraint("Vertical", 17, 3, 21, 3))
sketch4.addConstraint(Sketcher.Constraint("Vertical", 21, 3, 25, 3))
sketch4.addConstraint(Sketcher.Constraint("Vertical", 18, 3, 26, 3))
sketch4.addConstraint(Sketcher.Constraint("Vertical", 25, 3, 29, 3))
sketch4.addConstraint(Sketcher.Constraint("Vertical", 2, 2, 4, 1))
sketch4.addConstraint(Sketcher.Constraint("Vertical", 3, 2, 6, 1))
sketch4.addConstraint(Sketcher.Constraint("Vertical", 1, 2, 14, 2))
sketch4.addConstraint(Sketcher.Constraint("Vertical", 15, 2, 22, 2))
sketch4.addConstraint(Sketcher.Constraint("Vertical", 23, 2, 30, 2))
sketch4.addConstraint(Sketcher.Constraint("Equal", 5, 11))
sketch4.addConstraint(Sketcher.Constraint("Equal", 11, 19))
sketch4.addConstraint(Sketcher.Constraint("Equal", 19, 27))
sketch4.addConstraint(Sketcher.Constraint("Radius", 3, Q("0.13 in")))
sketch4.addConstraint(Sketcher.Constraint("DistanceX", 0, 1, 0, 2, Q("0.5 in")))
sketch4.addConstraint(Sketcher.Constraint("DistanceY", 1, 1, 1, 2, Q("1.5 in")))
sketch4.addConstraint(Sketcher.Constraint("Radius", 4, Q("0.1249999 in")))
sketch4.addConstraint(Sketcher.Constraint("DistanceY", 3, 3, 17, 3, Q("6.5 in")))
sketch4.addConstraint(Sketcher.Constraint("DistanceY", 9, 3, 25, 3, Q("6.5 in")))
sketch4.addConstraint(Sketcher.Constraint("DistanceY", 3, 3, 9, 3, Q("3.25 in")))
sketch4.addConstraint(Sketcher.Constraint("DistanceX", -1, 1, 3, 3, 292.099962))
sketch4.addConstraint(Sketcher.Constraint("DistanceY", 6, 3, -1, 1, 17.173961))
pocket2 = doc.addObject("PartDesign::Pocket", "Pocket001")
body.addObject(pocket2)
pocket2.Profile = sketch4
pocket2.Length = Q("1 in")

sketch5 = doc.addObject("Sketcher::SketchObject", "Sketch004")
body.addObject(sketch5)
sketch5.AttachmentSupport = (doc.YZ_Plane, [""])
sketch5.MapMode = "FlatFace"
sketch5.AttachmentOffset = App.Placement(App.Vector(0, 0, 0.5 * 25.4), App.Rotation())
sketch5.addGeometry(Part.LineSegment(App.Vector(-78.3, -29.3, 0), App.Vector(-86.1, -29.3, 0)), False)
sketch5.addGeometry(Part.LineSegment(App.Vector(-86.1, -29.3, 0), App.Vector(-86.1, -51.5, 0)), False)
sketch5.addGeometry(Part.LineSegment(App.Vector(-86.1, -51.5, 0), App.Vector(-78.3, -51.5, 0)), False)
sketch5.addGeometry(Part.ArcOfCircle(Part.Circle(App.Vector(-78.3, -53.6, 0), App.Vector(0, 0, 1), 2), math.radians(22), math.radians(90)), False)
sketch5.addGeometry(Part.ArcOfCircle(Part.Circle(App.Vector(-73.4, -51.5, 0), App.Vector(0, 0, 1), 3.3), math.radians(-158), math.radians(68)), False)
sketch5.addGeometry(Part.ArcOfCircle(Part.Circle(App.Vector(-71.4, -46.6, 0), App.Vector(0, 0, 1), 2), math.radians(-180), math.radians(-112)), False)
sketch5.addGeometry(Part.LineSegment(App.Vector(-73.4, -46.6, 0), App.Vector(-73.4, -34.2, 0)), False)
sketch5.addGeometry(Part.ArcOfCircle(Part.Circle(App.Vector(-71.4, -34.2, 0), App.Vector(0, 0, 1), 2), math.radians(112), math.radians(180)), False)
sketch5.addGeometry(Part.ArcOfCircle(Part.Circle(App.Vector(-73.4, -29.3, 0), App.Vector(0, 0, 1), 3.3), math.radians(-68), math.radians(158)), False)
sketch5.addGeometry(Part.ArcOfCircle(Part.Circle(App.Vector(-78.3, -27.3, 0), App.Vector(0, 0, 1), 2), math.radians(-90), math.radians(-22)), False)
sketch5.addConstraint(Sketcher.Constraint("Coincident", 0, 2, 1, 1))
sketch5.addConstraint(Sketcher.Constraint("Coincident", 1, 2, 2, 1))
sketch5.addConstraint(Sketcher.Constraint("Tangent", 2, 2, 3, 2))
sketch5.addConstraint(Sketcher.Constraint("Tangent", 3, 1, 4, 1))
sketch5.addConstraint(Sketcher.Constraint("Tangent", 4, 2, 5, 2))
sketch5.addConstraint(Sketcher.Constraint("Tangent", 5, 1, 6, 1))
sketch5.addConstraint(Sketcher.Constraint("Tangent", 6, 2, 7, 2))
sketch5.addConstraint(Sketcher.Constraint("Tangent", 7, 1, 8, 1))
sketch5.addConstraint(Sketcher.Constraint("Tangent", 8, 2, 9, 2))
sketch5.addConstraint(Sketcher.Constraint("Tangent", 9, 1, 0, 1))
sketch5.addConstraint(Sketcher.Constraint("Horizontal", 0))
sketch5.addConstraint(Sketcher.Constraint("Vertical", 1))
sketch5.addConstraint(Sketcher.Constraint("Horizontal", 2))
sketch5.addConstraint(Sketcher.Constraint("Vertical", 6))
sketch5.addConstraint(Sketcher.Constraint("Equal", 3, 5))
sketch5.addConstraint(Sketcher.Constraint("Equal", 5, 7))
sketch5.addConstraint(Sketcher.Constraint("Equal", 4, 8))
sketch5.addConstraint(Sketcher.Constraint("Horizontal", 8, 3, 0, 2))
sketch5.addConstraint(Sketcher.Constraint("Horizontal", 4, 3, 1, 2))
sketch5.addConstraint(Sketcher.Constraint("Vertical", 4, 3, 8, 3))
sketch5.addConstraint(Sketcher.Constraint("Vertical", 8, 3, 5, 1))
sketch5.addConstraint(Sketcher.Constraint("Vertical", 3, 1, 8, 2))
sketch5.addConstraint(Sketcher.Constraint("Radius", 3, Q("0.08 in")))
sketch5.addConstraint(Sketcher.Constraint("Radius", 4, Q("0.13 in")))
sketch5.addConstraint(Sketcher.Constraint("DistanceX", 0, 2, 8, 3, Q("0.5 in")))
sketch5.addConstraint(Sketcher.Constraint("DistanceY", 1, 2, 1, 1, Q("0.875 in")))
sketch5.addConstraint(Sketcher.Constraint("DistanceX", 3, 1, -1, 1, 76.4437))
sketch5.addConstraint(Sketcher.Constraint("DistanceY", 3, 1, -1, 1, 52.779299))
pocket3 = doc.addObject("PartDesign::Pocket", "Pocket002")
body.addObject(pocket3)
pocket3.Profile = sketch5
pocket3.Length = Q("1 in")

doc.recompute()
